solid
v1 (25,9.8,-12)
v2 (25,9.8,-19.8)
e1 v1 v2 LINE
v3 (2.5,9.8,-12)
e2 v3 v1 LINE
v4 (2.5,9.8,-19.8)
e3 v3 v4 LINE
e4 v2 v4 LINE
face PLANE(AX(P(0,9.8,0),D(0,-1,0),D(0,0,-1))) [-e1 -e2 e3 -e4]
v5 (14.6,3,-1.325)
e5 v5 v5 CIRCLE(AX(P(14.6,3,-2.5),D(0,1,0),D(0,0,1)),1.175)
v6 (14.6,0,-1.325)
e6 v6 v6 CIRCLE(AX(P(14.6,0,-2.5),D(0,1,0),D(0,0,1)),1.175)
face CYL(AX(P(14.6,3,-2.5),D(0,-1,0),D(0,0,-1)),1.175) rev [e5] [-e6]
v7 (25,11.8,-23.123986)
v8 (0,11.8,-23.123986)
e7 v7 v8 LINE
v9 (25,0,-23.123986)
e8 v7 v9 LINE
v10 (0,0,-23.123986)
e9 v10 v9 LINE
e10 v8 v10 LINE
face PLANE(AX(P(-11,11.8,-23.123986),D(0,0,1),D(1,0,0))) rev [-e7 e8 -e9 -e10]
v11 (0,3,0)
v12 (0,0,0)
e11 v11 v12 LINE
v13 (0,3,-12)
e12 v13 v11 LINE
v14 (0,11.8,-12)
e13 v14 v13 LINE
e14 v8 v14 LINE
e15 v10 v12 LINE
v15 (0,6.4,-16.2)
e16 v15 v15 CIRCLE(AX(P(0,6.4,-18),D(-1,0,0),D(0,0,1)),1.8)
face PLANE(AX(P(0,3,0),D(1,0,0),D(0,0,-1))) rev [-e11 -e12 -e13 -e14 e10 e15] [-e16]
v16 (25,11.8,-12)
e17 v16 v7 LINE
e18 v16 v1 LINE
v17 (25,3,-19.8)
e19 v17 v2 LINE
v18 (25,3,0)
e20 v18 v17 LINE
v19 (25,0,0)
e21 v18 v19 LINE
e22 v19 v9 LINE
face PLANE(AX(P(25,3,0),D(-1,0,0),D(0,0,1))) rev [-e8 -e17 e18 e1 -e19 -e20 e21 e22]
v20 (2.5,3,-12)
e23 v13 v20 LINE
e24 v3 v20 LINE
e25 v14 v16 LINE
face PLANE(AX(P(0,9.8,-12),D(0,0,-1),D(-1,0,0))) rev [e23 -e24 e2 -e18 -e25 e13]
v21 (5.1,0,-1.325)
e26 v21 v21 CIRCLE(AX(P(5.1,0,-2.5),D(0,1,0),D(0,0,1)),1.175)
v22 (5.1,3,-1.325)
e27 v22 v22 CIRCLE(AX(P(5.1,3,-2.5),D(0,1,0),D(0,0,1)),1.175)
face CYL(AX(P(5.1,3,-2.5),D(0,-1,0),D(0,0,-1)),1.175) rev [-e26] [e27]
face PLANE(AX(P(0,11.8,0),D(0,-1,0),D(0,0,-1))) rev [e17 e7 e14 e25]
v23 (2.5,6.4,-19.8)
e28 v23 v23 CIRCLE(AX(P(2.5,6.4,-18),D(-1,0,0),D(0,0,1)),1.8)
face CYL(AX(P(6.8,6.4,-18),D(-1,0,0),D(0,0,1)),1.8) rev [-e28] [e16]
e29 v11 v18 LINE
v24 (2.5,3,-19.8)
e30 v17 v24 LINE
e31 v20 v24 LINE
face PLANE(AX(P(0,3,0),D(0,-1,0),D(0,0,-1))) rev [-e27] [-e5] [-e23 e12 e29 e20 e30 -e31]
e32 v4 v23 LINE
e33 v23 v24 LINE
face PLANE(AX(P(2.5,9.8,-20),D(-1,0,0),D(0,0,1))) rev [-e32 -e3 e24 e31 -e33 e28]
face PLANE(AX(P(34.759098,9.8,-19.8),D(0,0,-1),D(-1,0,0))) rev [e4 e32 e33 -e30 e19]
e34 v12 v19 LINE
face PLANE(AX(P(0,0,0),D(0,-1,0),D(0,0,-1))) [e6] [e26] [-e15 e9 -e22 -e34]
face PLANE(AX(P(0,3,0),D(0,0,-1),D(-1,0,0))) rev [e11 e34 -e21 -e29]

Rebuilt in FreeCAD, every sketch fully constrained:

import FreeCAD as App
import Part
import Sketcher
from FreeCAD import Vector
Q = App.Units.Quantity


def add_polygon(sketch, points):
    """Adds a closed chain of lines whose ends are joined by coincident constraints."""
    first, n = sketch.GeometryCount, len(points)
    for a, b in zip(points, points[1:] + points[:1]):
        sketch.addGeometry(Part.LineSegment(App.Vector(*a, 0), App.Vector(*b, 0)), False)
    for i in range(n):
        sketch.addConstraint(Sketcher.Constraint("Coincident", first + i, 2, first + (i + 1) % n, 1))

doc = App.newDocument("Part")
body = doc.addObject("PartDesign::Body", "Body")

sketch1 = doc.addObject("Sketcher::SketchObject", "Sketch")
body.addObject(sketch1)
sketch1.AttachmentSupport = (doc.XZ_Plane, [""])
sketch1.MapMode = "FlatFace"
add_polygon(sketch1, [(0, -20), (0, 0), (25, 0), (25, -20)])
sketch1.addGeometry(Part.Circle(Vector(5.1, -2.5, 0), Vector(0, 0, 1), 1.2), False)
sketch1.addGeometry(Part.Circle(Vector(14.6, -2.5, 0), Vector(0, 0, 1), 1.2), False)
sketch1.addConstraint(Sketcher.Constraint("Vertical", 0))
sketch1.addConstraint(Sketcher.Constraint("Horizontal", 1))
sketch1.addConstraint(Sketcher.Constraint("Vertical", 2))
sketch1.addConstraint(Sketcher.Constraint("Horizontal", 3))
sketch1.addConstraint(Sketcher.Constraint("Coincident", 0, 2, -1, 1))
sketch1.addConstraint(Sketcher.Constraint("Equal", 4, 5))
sketch1.addConstraint(Sketcher.Constraint("Horizontal", 4, 3, 5, 3))
sketch1.addConstraint(Sketcher.Constraint("Diameter", 4, Q("2.35 mm")))
sketch1.addConstraint(Sketcher.Constraint("DistanceX", 1, 1, 1, 2, Q("25 mm")))
sketch1.addConstraint(Sketcher.Constraint("DistanceY", 0, 1, 0, 2, Q("20 mm")))
sketch1.addConstraint(Sketcher.Constraint("DistanceX", -1, 1, 4, 3, Q("5.1 mm")))
sketch1.addConstraint(Sketcher.Constraint("DistanceY", 4, 3, -1, 1, Q("2.5 mm")))
sketch1.addConstraint(Sketcher.Constraint("DistanceX", -1, 1, 5, 3, Q("14.6 mm")))
pad1 = doc.addObject("PartDesign::Pad", "Pad")
body.addObject(pad1)
pad1.Profile = sketch1
pad1.Length = 3
pad1.Reversed = True

sketch2 = doc.addObject("Sketcher::SketchObject", "Sketch001")
body.addObject(sketch2)
sketch2.AttachmentSupport = (doc.XZ_Plane, [""])
sketch2.MapMode = "FlatFace"
sketch2.AttachmentOffset = App.Placement(Vector(0, 0, -3), App.Rotation())
add_polygon(sketch2, [(0, -20), (0, -12), (2.5, -12), (2.5, -20)])
sketch2.addConstraint(Sketcher.Constraint("Vertical", 0))
sketch2.addConstraint(Sketcher.Constraint("Horizontal", 1))
sketch2.addConstraint(Sketcher.Constraint("Vertical", 2))
sketch2.addConstraint(Sketcher.Constraint("Horizontal", 3))
sketch2.addConstraint(Sketcher.Constraint("PointOnObject", 0, 2, -2))
sketch2.addConstraint(Sketcher.Constraint("DistanceY", 0, 1, 0, 2, Q("8 mm")))
sketch2.addConstraint(Sketcher.Constraint("DistanceX", 1, 1, 1, 2, Q("2.5 mm")))
sketch2.addConstraint(Sketcher.Constraint("DistanceY", 0, 2, -1, 1, Q("12 mm")))
pad2 = doc.addObject("PartDesign::Pad", "Pad001")
body.addObject(pad2)
pad2.Profile = sketch2
pad2.Length = 6.8
pad2.Reversed = True

sketch3 = doc.addObject("Sketcher::SketchObject", "Sketch002")
body.addObject(sketch3)
sketch3.AttachmentSupport = (doc.XY_Plane, [""])
sketch3.MapMode = "FlatFace"
sketch3.AttachmentOffset = App.Placement(Vector(0, 0, -20), App.Rotation())
add_polygon(sketch3, [(0, 0), (0, 9.8), (2.5, 9.8), (2.5, 3), (25, 3), (25, 0)])
sketch3.addConstraint(Sketcher.Constraint("Vertical", 0))
sketch3.addConstraint(Sketcher.Constraint("Horizontal", 1))
sketch3.addConstraint(Sketcher.Constraint("Vertical", 2))
sketch3.addConstraint(Sketcher.Constraint("Horizontal", 3))
sketch3.addConstraint(Sketcher.Constraint("Vertical", 4))
sketch3.addConstraint(Sketcher.Constraint("Horizontal", 5))
sketch3.addConstraint(Sketcher.Constraint("Coincident", 5, 2, -1, 1))
sketch3.addConstraint(Sketcher.Constraint("DistanceX", 5, 2, 5, 1, Q("25 mm")))
sketch3.addConstraint(Sketcher.Constraint("DistanceY", 4, 2, 4, 1, Q("3 mm")))
sketch3.addConstraint(Sketcher.Constraint("DistanceX", 1, 1, 1, 2, Q("2.5 mm")))
sketch3.addConstraint(Sketcher.Constraint("DistanceY", 0, 1, 0, 2, Q("9.8 mm")))
pad3 = doc.addObject("PartDesign::Pad", "Pad002")
body.addObject(pad3)
pad3.Profile = sketch3
pad3.Length = 6.8
pad3.Reversed = True

sketch4 = doc.addObject("Sketcher::SketchObject", "Sketch003")
body.addObject(sketch4)
sketch4.AttachmentSupport = (doc.YZ_Plane, [""])
sketch4.MapMode = "FlatFace"
sketch4.addGeometry(Part.Circle(Vector(6.4, -18, 0), Vector(0, 0, 1), 1.8), False)
sketch4.addConstraint(Sketcher.Constraint("Diameter", 0, Q("3.6 mm")))
sketch4.addConstraint(Sketcher.Constraint("DistanceY", 0, 3, -1, 1, Q("18 mm")))
sketch4.addConstraint(Sketcher.Constraint("DistanceX", -1, 1, 0, 3, Q("6.4 mm")))
pocket1 = doc.addObject("PartDesign::Pocket", "Pocket")
body.addObject(pocket1)
pocket1.Profile = sketch4
pocket1.Length = 6.8
pocket1.Reversed = True

sketch5 = doc.addObject("Sketcher::SketchObject", "Sketch004")
body.addObject(sketch5)
sketch5.AttachmentSupport = (doc.YZ_Plane, [""])
sketch5.MapMode = "FlatFace"
sketch5.AttachmentOffset = App.Placement(Vector(0, 0, 2.5), App.Rotation())
add_polygon(sketch5, [(10, -20), (3, -20), (3, -27), (10, -27)])
sketch5.addConstraint(Sketcher.Constraint("Horizontal", 0))
sketch5.addConstraint(Sketcher.Constraint("Vertical", 1))
sketch5.addConstraint(Sketcher.Constraint("Horizontal", 2))
sketch5.addConstraint(Sketcher.Constraint("Vertical", 3))
sketch5.addConstraint(Sketcher.Constraint("DistanceY", 1, 2, 1, 1, Q("7 mm")))
sketch5.addConstraint(Sketcher.Constraint("DistanceX", 0, 2, 0, 1, Q("6.8 mm")))
sketch5.addConstraint(Sketcher.Constraint("DistanceX", -1, 1, 0, 2, Q("3 mm")))
sketch5.addConstraint(Sketcher.Constraint("DistanceY", 0, 2, -1, 1, Q("19.8 mm")))
pad4 = doc.addObject("PartDesign::Pad", "Pad003")
body.addObject(pad4)
pad4.Profile = sketch5
pad4.Length = 22.5

sketch6 = doc.addObject("Sketcher::SketchObject", "Sketch005")
body.addObject(sketch6)
sketch6.AttachmentSupport = (doc.XZ_Plane, [""])
sketch6.MapMode = "FlatFace"
sketch6.AttachmentOffset = App.Placement(Vector(0, 0, -9.8), App.Rotation())
add_polygon(sketch6, [(0, -27), (0, -12), (25, -12), (25, -27)])
sketch6.addConstraint(Sketcher.Constraint("Vertical", 0))
sketch6.addConstraint(Sketcher.Constraint("Horizontal", 1))
sketch6.addConstraint(Sketcher.Constraint("Vertical", 2))
sketch6.addConstraint(Sketcher.Constraint("Horizontal", 3))
sketch6.addConstraint(Sketcher.Constraint("PointOnObject", 0, 2, -2))
sketch6.addConstraint(Sketcher.Constraint("DistanceX", 1, 1, 1, 2, Q("25 mm")))
sketch6.addConstraint(Sketcher.Constraint("DistanceY", 0, 1, 0, 2, Q("14.8 mm")))
sketch6.addConstraint(Sketcher.Constraint("DistanceY", 0, 2, -1, 1, Q("12 mm")))
pad5 = doc.addObject("PartDesign::Pad", "Pad004")
body.addObject(pad5)
pad5.Profile = sketch6
pad5.Length = 2
pad5.Reversed = True

sketch7 = doc.addObject("Sketcher::SketchObject", "Sketch006")
body.addObject(sketch7)
sketch7.AttachmentSupport = (doc.YZ_Plane, [""])
sketch7.MapMode = "FlatFace"
sketch7.AttachmentOffset = App.Placement(Vector(0, 0, 25), App.Rotation())
add_polygon(sketch7, [(11.8, -23.1), (0, -23.1), (0, -26.8), (11.8, -26.8)])
sketch7.addConstraint(Sketcher.Constraint("Horizontal", 0))
sketch7.addConstraint(Sketcher.Constraint("Vertical", 1))
sketch7.addConstraint(Sketcher.Constraint("Horizontal", 2))
sketch7.addConstraint(Sketcher.Constraint("Vertical", 3))
sketch7.addConstraint(Sketcher.Constraint("PointOnObject", 0, 2, -2))
sketch7.addConstraint(Sketcher.Constraint("DistanceX", 0, 2, 0, 1, Q("11.8 mm")))
sketch7.addConstraint(Sketcher.Constraint("DistanceY", 1, 2, -1, 1, Q("26.8 mm")))
sketch7.addConstraint(Sketcher.Constraint("DistanceY", 1, 2, 1, 1, Q("3.676014 mm")))
pocket2 = doc.addObject("PartDesign::Pocket", "Pocket001")
body.addObject(pocket2)
pocket2.Profile = sketch7
pocket2.Length = 36

doc.recompute()
